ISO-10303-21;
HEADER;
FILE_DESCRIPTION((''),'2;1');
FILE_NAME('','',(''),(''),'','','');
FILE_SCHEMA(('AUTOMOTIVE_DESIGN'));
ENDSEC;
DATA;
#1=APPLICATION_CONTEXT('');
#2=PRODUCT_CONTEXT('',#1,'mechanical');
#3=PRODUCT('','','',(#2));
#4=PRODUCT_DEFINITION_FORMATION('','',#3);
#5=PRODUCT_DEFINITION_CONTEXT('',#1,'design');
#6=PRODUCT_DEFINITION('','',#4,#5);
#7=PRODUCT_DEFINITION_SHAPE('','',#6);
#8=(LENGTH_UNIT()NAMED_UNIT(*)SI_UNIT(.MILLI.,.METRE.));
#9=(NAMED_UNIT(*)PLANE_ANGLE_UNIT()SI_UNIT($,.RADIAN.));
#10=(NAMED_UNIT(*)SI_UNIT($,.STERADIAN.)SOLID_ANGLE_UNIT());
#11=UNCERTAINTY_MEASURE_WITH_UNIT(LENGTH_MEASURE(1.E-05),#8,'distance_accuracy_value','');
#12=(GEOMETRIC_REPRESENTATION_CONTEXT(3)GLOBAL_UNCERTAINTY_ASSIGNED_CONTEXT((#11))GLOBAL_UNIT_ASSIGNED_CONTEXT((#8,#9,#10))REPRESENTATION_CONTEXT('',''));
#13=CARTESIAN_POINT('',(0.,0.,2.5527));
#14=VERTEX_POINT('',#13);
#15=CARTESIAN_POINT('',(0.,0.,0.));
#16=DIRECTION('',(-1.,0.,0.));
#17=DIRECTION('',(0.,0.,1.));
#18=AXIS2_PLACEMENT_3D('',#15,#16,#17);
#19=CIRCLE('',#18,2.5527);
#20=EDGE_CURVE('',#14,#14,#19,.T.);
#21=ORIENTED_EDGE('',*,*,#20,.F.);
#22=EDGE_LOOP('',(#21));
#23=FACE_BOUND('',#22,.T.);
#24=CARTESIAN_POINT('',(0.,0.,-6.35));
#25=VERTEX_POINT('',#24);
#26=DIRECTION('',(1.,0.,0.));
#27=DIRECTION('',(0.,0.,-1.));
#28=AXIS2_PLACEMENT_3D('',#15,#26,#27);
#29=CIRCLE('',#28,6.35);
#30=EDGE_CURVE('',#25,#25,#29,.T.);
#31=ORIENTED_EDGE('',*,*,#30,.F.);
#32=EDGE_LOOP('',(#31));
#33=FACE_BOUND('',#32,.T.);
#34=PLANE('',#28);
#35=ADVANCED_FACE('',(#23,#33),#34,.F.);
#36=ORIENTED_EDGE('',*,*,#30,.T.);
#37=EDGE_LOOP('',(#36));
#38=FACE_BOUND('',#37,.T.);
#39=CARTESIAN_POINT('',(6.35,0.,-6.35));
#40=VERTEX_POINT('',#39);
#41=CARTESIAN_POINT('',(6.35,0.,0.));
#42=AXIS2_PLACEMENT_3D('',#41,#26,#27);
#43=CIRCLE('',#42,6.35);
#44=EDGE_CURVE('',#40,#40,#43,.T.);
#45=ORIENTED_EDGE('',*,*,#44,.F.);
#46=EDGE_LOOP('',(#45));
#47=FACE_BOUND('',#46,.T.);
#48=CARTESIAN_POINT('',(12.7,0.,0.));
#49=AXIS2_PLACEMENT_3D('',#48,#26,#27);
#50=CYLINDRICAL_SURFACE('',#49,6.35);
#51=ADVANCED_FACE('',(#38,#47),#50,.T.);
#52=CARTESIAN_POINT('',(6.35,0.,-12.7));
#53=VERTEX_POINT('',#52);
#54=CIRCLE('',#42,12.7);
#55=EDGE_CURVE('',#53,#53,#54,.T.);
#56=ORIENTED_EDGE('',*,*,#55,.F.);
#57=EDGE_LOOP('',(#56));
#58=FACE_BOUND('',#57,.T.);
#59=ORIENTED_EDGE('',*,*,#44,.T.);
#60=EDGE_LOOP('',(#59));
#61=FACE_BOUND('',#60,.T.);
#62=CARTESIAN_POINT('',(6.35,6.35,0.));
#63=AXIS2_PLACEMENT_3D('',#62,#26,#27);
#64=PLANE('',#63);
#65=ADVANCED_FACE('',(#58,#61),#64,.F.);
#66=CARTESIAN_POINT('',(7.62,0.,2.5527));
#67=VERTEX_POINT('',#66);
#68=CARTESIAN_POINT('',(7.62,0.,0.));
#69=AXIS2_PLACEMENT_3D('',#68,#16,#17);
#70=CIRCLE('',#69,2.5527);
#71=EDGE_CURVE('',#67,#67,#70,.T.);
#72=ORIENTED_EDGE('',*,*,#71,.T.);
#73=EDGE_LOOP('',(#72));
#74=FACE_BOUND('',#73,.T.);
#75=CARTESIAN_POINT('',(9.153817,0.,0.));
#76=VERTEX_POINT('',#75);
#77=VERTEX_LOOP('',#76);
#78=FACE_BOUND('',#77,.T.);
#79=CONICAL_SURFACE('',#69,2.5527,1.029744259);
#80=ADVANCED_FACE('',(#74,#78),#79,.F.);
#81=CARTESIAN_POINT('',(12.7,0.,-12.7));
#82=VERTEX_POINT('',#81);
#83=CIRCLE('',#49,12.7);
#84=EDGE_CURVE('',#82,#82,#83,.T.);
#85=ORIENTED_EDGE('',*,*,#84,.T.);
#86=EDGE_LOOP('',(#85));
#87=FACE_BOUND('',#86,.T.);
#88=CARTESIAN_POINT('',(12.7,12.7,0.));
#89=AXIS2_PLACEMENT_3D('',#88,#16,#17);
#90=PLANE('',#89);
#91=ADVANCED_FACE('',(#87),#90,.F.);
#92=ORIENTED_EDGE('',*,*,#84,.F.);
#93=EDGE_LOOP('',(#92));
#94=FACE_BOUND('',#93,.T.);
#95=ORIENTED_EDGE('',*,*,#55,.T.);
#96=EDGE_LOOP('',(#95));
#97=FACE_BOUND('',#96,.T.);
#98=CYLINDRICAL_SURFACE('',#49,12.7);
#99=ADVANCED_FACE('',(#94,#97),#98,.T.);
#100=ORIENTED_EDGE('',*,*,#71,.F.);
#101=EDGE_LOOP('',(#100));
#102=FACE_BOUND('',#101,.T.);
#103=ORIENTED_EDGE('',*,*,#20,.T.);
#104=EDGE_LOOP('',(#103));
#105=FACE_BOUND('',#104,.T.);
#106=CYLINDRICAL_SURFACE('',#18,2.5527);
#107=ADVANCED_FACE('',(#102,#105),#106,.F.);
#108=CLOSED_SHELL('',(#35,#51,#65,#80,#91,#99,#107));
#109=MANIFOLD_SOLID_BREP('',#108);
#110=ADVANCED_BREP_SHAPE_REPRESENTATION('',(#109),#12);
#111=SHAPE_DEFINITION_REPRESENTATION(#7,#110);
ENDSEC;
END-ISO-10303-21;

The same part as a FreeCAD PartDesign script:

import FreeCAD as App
import Part
import Sketcher

V = App.Vector
Q = App.Units.Quantity

doc = App.newDocument("Part")
body = doc.addObject("PartDesign::Body", "Body")

sketch1 = body.newObject("Sketcher::SketchObject", "Sketch")
sketch1.AttachmentSupport = (doc.getObject("XY_Plane"), [""])
sketch1.MapMode = "FlatFace"
sketch1.addGeometry(Part.LineSegment(V(0, 6, 0), V(0, 0, 0)), False)
sketch1.addGeometry(Part.LineSegment(V(0, 0, 0), V(13, 0, 0)), False)
sketch1.addGeometry(Part.LineSegment(V(13, 0, 0), V(13, 13, 0)), False)
sketch1.addGeometry(Part.LineSegment(V(13, 13, 0), V(6, 13, 0)), False)
sketch1.addGeometry(Part.LineSegment(V(6, 13, 0), V(6, 6, 0)), False)
sketch1.addGeometry(Part.LineSegment(V(6, 6, 0), V(0, 6, 0)), False)
sketch1.addConstraint(Sketcher.Constraint("Coincident", 0, 2, 1, 1))
sketch1.addConstraint(Sketcher.Constraint("Coincident", 1, 2, 2, 1))
sketch1.addConstraint(Sketcher.Constraint("Coincident", 2, 2, 3, 1))
sketch1.addConstraint(Sketcher.Constraint("Coincident", 3, 2, 4, 1))
sketch1.addConstraint(Sketcher.Constraint("Coincident", 4, 2, 5, 1))
sketch1.addConstraint(Sketcher.Constraint("Coincident", 5, 2, 0, 1))
sketch1.addConstraint(Sketcher.Constraint("Vertical", 0))
sketch1.addConstraint(Sketcher.Constraint("Horizontal", 1))
sketch1.addConstraint(Sketcher.Constraint("Vertical", 2))
sketch1.addConstraint(Sketcher.Constraint("Horizontal", 3))
sketch1.addConstraint(Sketcher.Constraint("Vertical", 4))
sketch1.addConstraint(Sketcher.Constraint("Horizontal", 5))
sketch1.addConstraint(Sketcher.Constraint("Coincident", 0, 2, -1, 1))
sketch1.addConstraint(Sketcher.Constraint("Equal", 3, 5))
sketch1.addConstraint(Sketcher.Constraint("Equal", 5, 0))
sketch1.addConstraint(Sketcher.Constraint("Equal", 1, 2))
sketch1.addConstraint(Sketcher.Constraint("DistanceX", 1, 1, 1, 2, Q("0.5 in")))
revolution = body.newObject("PartDesign::Revolution", "Revolution")
revolution.Profile = sketch1
revolution.ReferenceAxis = (sketch1, ["H_Axis"])
revolution.Angle = 360

sketch2 = body.newObject("Sketcher::SketchObject", "Sketch001")
sketch2.AttachmentSupport = (doc.getObject("YZ_Plane"), [""])
sketch2.MapMode = "FlatFace"
sketch2.addGeometry(Part.Circle(V(0, 0, 0), V(0, 0, 1), 2.6), False)
sketch2.addConstraint(Sketcher.Constraint("Coincident", 0, 3, -1, 1))
sketch2.addConstraint(Sketcher.Constraint("Diameter", 0, Q("0.201 in")))
doc.recompute()
hole = body.newObject("PartDesign::Hole", "Hole")
hole.Profile = sketch2
hole.ThreadType = "None"
hole.Diameter = Q("0.201 in")
hole.DepthType = "Dimension"
hole.Depth = Q("0.3 in")
hole.DrillPoint = "Angled"
hole.DrillPointAngle = 118
hole.Reversed = True

doc.recompute()
